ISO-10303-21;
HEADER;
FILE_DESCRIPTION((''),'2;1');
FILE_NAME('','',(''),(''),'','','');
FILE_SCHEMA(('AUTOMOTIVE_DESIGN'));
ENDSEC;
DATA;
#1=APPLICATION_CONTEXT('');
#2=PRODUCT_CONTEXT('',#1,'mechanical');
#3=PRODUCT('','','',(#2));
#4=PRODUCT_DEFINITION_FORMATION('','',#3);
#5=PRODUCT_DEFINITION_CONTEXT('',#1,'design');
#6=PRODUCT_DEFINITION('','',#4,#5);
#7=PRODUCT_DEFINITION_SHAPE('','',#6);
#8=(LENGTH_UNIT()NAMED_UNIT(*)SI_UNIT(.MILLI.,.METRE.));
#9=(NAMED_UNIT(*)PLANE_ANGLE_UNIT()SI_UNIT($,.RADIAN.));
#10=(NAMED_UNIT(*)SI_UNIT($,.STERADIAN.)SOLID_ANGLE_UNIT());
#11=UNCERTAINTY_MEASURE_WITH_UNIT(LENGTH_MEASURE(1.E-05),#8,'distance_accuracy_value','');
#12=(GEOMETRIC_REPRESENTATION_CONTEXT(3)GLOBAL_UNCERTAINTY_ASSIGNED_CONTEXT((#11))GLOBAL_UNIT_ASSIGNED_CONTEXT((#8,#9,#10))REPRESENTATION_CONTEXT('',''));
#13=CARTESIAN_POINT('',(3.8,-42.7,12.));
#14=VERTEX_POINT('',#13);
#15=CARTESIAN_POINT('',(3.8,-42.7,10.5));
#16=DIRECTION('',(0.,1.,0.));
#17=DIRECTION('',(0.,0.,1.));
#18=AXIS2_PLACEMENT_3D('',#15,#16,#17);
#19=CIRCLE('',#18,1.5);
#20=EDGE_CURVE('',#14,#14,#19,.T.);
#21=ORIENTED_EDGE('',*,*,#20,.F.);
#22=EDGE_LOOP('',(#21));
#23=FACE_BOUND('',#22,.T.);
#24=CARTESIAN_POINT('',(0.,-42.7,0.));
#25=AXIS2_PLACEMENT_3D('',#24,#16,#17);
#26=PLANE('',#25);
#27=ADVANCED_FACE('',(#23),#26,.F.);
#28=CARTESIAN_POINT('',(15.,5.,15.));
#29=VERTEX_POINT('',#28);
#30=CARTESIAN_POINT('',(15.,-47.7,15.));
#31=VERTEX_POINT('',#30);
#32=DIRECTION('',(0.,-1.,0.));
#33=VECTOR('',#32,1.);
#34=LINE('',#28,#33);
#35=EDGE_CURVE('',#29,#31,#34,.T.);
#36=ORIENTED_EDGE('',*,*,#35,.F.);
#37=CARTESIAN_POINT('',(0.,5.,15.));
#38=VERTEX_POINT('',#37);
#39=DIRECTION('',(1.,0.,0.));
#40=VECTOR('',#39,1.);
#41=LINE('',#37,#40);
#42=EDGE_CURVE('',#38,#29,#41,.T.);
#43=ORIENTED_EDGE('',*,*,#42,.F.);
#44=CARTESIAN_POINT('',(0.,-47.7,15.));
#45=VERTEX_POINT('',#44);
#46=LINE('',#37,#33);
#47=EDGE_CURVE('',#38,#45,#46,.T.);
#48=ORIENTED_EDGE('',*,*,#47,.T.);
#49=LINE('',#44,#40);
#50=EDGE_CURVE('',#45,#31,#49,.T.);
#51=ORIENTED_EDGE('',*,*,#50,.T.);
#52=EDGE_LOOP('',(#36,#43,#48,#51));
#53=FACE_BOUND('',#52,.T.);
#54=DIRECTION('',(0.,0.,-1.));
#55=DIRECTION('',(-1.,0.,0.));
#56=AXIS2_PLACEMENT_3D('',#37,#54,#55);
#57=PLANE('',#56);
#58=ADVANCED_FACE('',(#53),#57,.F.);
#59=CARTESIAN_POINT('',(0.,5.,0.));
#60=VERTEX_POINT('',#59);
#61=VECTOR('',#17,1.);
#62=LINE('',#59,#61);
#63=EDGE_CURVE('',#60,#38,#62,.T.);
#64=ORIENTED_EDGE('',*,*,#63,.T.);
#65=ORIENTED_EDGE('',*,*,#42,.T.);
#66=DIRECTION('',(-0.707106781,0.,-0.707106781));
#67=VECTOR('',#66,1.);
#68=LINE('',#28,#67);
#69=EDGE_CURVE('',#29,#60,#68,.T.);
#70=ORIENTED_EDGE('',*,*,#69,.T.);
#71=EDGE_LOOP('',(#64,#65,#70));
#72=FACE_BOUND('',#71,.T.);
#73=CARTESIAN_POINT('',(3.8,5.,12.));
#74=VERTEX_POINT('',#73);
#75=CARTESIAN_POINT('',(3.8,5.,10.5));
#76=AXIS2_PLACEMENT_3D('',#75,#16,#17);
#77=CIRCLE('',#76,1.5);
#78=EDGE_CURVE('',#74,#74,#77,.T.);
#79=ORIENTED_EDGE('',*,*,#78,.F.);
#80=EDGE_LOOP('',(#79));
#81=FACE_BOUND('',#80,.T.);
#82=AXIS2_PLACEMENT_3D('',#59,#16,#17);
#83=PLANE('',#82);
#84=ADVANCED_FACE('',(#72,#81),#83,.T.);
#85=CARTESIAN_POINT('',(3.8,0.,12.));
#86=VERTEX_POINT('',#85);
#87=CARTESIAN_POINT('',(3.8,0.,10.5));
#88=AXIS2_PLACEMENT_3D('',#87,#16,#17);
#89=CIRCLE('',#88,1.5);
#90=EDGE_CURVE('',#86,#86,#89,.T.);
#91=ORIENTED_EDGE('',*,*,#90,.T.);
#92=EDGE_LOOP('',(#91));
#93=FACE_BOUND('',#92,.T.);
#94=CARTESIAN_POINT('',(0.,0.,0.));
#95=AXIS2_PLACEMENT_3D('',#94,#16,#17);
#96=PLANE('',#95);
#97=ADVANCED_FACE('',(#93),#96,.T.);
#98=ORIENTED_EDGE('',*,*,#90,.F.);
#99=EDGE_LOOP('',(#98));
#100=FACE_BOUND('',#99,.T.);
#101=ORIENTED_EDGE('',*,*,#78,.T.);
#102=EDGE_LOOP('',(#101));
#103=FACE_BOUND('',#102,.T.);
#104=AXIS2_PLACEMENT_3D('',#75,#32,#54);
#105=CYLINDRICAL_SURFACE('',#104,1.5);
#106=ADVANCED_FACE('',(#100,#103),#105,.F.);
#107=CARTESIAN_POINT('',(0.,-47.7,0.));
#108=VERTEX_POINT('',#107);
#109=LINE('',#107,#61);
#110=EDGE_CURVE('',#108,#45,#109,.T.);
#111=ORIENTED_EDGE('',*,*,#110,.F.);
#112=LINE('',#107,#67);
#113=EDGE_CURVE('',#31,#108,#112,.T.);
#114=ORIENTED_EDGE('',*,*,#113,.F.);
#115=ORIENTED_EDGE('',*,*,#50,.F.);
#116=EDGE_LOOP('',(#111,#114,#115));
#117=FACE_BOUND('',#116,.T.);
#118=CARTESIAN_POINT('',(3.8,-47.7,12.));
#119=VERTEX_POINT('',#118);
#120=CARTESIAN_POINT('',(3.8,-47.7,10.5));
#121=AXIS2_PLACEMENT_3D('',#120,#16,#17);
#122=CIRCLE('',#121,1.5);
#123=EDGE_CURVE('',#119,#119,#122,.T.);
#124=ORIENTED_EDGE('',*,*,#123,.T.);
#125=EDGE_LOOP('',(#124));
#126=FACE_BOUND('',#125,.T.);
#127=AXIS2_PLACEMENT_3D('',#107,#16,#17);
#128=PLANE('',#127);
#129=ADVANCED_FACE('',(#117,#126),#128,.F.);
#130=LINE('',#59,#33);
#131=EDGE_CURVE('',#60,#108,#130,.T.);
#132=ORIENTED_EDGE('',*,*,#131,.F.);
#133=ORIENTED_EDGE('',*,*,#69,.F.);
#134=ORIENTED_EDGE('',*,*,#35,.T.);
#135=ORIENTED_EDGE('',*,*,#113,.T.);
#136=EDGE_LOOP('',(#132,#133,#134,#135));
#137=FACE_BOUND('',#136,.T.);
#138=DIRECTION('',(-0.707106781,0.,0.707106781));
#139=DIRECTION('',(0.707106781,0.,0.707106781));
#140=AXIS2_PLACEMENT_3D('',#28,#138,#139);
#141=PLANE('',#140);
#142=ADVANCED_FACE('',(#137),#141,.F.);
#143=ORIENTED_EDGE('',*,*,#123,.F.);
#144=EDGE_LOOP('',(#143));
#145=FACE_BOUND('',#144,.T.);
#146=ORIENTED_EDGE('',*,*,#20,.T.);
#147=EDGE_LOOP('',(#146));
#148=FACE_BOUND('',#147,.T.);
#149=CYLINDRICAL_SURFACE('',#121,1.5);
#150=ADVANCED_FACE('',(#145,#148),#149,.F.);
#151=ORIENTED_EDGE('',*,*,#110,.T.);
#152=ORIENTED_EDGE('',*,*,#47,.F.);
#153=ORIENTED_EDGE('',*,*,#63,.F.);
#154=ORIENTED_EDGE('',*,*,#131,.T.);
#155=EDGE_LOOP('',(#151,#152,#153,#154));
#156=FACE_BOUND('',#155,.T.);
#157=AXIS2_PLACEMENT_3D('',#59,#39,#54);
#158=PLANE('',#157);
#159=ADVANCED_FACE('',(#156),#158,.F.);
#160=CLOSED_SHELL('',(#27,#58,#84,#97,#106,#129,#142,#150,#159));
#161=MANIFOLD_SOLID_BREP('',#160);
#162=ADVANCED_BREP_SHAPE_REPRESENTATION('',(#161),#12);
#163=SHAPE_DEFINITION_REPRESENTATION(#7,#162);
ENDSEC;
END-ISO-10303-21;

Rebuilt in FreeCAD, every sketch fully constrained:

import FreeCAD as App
import Part
import Sketcher

doc = App.newDocument("Part")
body = doc.addObject("PartDesign::Body", "Body")

# Sketch on XZ plane
sketch1 = body.newObject("Sketcher::SketchObject", "Sketch")
sketch1.AttachmentSupport = (doc.getObject("XZ_Plane"), [""])
sketch1.MapMode = "FlatFace"
sketch1.addGeometry(Part.LineSegment(App.Vector(0, 0, 0), App.Vector(0, 15, 0)), False)
sketch1.addGeometry(Part.LineSegment(App.Vector(0, 15, 0), App.Vector(15, 15, 0)), False)
sketch1.addGeometry(Part.LineSegment(App.Vector(15, 15, 0), App.Vector(0, 0, 0)), False)
sketch1.addGeometry(Part.Circle(App.Vector(3.8, 10.5, 0), App.Vector(0, 0, 1), 1.5), False)
sketch1.addConstraint(Sketcher.Constraint("Coincident", 0, 2, 1, 1))
sketch1.addConstraint(Sketcher.Constraint("Coincident", 1, 2, 2, 1))
sketch1.addConstraint(Sketcher.Constraint("Coincident", 2, 2, 0, 1))
sketch1.addConstraint(Sketcher.Constraint("Vertical", 0))
sketch1.addConstraint(Sketcher.Constraint("Horizontal", 1))
sketch1.addConstraint(Sketcher.Constraint("Coincident", 2, 2, -1, 1))
sketch1.addConstraint(Sketcher.Constraint("Equal", 1, 0))
sketch1.addConstraint(Sketcher.Constraint("Diameter", 3, 3.0))
sketch1.addConstraint(Sketcher.Constraint("DistanceX", 1, 1, 1, 2, 15.0))
sketch1.addConstraint(Sketcher.Constraint("DistanceX", -1, 1, 3, 3, 3.8))
sketch1.addConstraint(Sketcher.Constraint("DistanceY", -1, 1, 3, 3, 10.5))
pad1 = body.newObject("PartDesign::Pad", "Pad")
pad1.Profile = sketch1
pad1.Length = 5
pad1.Reversed = True

# Sketch on XZ plane
sketch2 = body.newObject("Sketcher::SketchObject", "Sketch001")
sketch2.AttachmentSupport = (doc.getObject("XZ_Plane"), [""])
sketch2.MapMode = "FlatFace"
sketch2.AttachmentOffset = App.Placement(App.Vector(0, 0, 42.7), App.Rotation())
sketch2.addGeometry(Part.LineSegment(App.Vector(0, 15, 0), App.Vector(15, 15, 0)), False)
sketch2.addGeometry(Part.LineSegment(App.Vector(15, 15, 0), App.Vector(0, 0, 0)), False)
sketch2.addGeometry(Part.LineSegment(App.Vector(0, 0, 0), App.Vector(0, 15, 0)), False)
sketch2.addConstraint(Sketcher.Constraint("Coincident", 0, 2, 1, 1))
sketch2.addConstraint(Sketcher.Constraint("Coincident", 1, 2, 2, 1))
sketch2.addConstraint(Sketcher.Constraint("Coincident", 2, 2, 0, 1))
sketch2.addConstraint(Sketcher.Constraint("Horizontal", 0))
sketch2.addConstraint(Sketcher.Constraint("Vertical", 2))
sketch2.addConstraint(Sketcher.Constraint("Coincident", 1, 2, -1, 1))
sketch2.addConstraint(Sketcher.Constraint("Equal", 0, 2))
sketch2.addConstraint(Sketcher.Constraint("DistanceX", 0, 1, 0, 2, 15.0))
pad2 = body.newObject("PartDesign::Pad", "Pad001")
pad2.Profile = sketch2
pad2.Length = 42.7
pad2.Reversed = True

# Sketch on XZ plane
sketch3 = body.newObject("Sketcher::SketchObject", "Sketch002")
sketch3.AttachmentSupport = (doc.getObject("XZ_Plane"), [""])
sketch3.MapMode = "FlatFace"
sketch3.AttachmentOffset = App.Placement(App.Vector(0, 0, 47.7), App.Rotation())
sketch3.addGeometry(Part.LineSegment(App.Vector(0, 15, 0), App.Vector(15, 15, 0)), False)
sketch3.addGeometry(Part.LineSegment(App.Vector(15, 15, 0), App.Vector(0, 0, 0)), False)
sketch3.addGeometry(Part.LineSegment(App.Vector(0, 0, 0), App.Vector(0, 15, 0)), False)
sketch3.addGeometry(Part.Circle(App.Vector(3.8, 10.5, 0), App.Vector(0, 0, 1), 1.5), False)
sketch3.addConstraint(Sketcher.Constraint("Coincident", 0, 2, 1, 1))
sketch3.addConstraint(Sketcher.Constraint("Coincident", 1, 2, 2, 1))
sketch3.addConstraint(Sketcher.Constraint("Coincident", 2, 2, 0, 1))
sketch3.addConstraint(Sketcher.Constraint("Horizontal", 0))
sketch3.addConstraint(Sketcher.Constraint("Vertical", 2))
sketch3.addConstraint(Sketcher.Constraint("Coincident", 1, 2, -1, 1))
sketch3.addConstraint(Sketcher.Constraint("Equal", 0, 2))
sketch3.addConstraint(Sketcher.Constraint("Diameter", 3, 3.0))
sketch3.addConstraint(Sketcher.Constraint("DistanceX", 0, 1, 0, 2, 15.0))
sketch3.addConstraint(Sketcher.Constraint("DistanceX", -1, 1, 3, 3, 3.8))
sketch3.addConstraint(Sketcher.Constraint("DistanceY", -1, 1, 3, 3, 10.5))
pad3 = body.newObject("PartDesign::Pad", "Pad002")
pad3.Profile = sketch3
pad3.Length = 5
pad3.Reversed = True

doc.recompute()
